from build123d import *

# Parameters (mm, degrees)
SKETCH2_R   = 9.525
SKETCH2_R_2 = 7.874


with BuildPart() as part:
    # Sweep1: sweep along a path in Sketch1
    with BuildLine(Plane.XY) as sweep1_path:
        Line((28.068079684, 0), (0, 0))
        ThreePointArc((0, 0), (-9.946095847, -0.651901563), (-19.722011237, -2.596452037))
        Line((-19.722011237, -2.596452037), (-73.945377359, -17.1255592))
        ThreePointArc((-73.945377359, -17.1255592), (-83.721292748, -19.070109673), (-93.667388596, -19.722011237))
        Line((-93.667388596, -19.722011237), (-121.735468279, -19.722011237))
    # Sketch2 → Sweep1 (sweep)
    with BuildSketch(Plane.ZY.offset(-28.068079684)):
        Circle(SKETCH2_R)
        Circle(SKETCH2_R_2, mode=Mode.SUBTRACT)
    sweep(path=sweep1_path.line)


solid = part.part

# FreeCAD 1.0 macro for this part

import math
import FreeCAD as App
import Part
import Sketcher

V = App.Vector
Q = App.Units.Quantity

doc = App.newDocument("Part")
body = doc.addObject("PartDesign::Body", "Body")

# Sketch on YZ plane
sketch1 = body.newObject("Sketcher::SketchObject", "Sketch")
sketch1.AttachmentSupport = (doc.getObject("YZ_Plane"), [""])
sketch1.MapMode = "FlatFace"
sketch1.AttachmentOffset = App.Placement(V(0, 0, 28.06808), App.Rotation())
sketch1.addGeometry([
    Part.Circle(V(0, 0, 0), V(0, 0, 1), 10),
    Part.Circle(V(0, 0, 0), V(0, 0, 1), 8),
], False)
sketch1.addConstraint([
    Sketcher.Constraint("Coincident", 0, 3, -1, 1),
    Sketcher.Constraint("Coincident", 1, 3, -1, 1),
    Sketcher.Constraint("Diameter", 0, Q("0.75 in")),
    Sketcher.Constraint("Diameter", 1, Q("0.62 in")),
])

# Sketch on XY plane
sketch2 = body.newObject("Sketcher::SketchObject", "Sketch001")
sketch2.AttachmentSupport = (doc.getObject("XY_Plane"), [""])
sketch2.MapMode = "FlatFace"
sketch2.addGeometry([
    Part.LineSegment(V(28, 0, 0), V(0, 0, 0)),  # 0
    Part.ArcOfCircle(Part.Circle(V(0, -76, 0), V(0, 0, 1), 76), math.radians(90), math.radians(105)),  # 1
    Part.LineSegment(V(-20, -3, 0), V(-74, -17, 0)),  # 2
    Part.ArcOfCircle(Part.Circle(V(-94, 56, 0), V(0, 0, 1), 76), math.radians(-90), math.radians(-75)),  # 3
    Part.LineSegment(V(-94, -20, 0), V(-122, -20, 0)),  # 4
], False)
sketch2.addConstraint([
    Sketcher.Constraint("Tangent", 0, 2, 1, 1),
    Sketcher.Constraint("Tangent", 1, 2, 2, 1),
    Sketcher.Constraint("Tangent", 2, 2, 3, 2),
    Sketcher.Constraint("Tangent", 3, 1, 4, 1),
    Sketcher.Constraint("Horizontal", 0),
    Sketcher.Constraint("Horizontal", 4),
    Sketcher.Constraint("Coincident", 0, 2, -1, 1),
    Sketcher.Constraint("Equal", 1, 3),
    Sketcher.Constraint("Equal", 0, 4),
    Sketcher.Constraint("Radius", 1, Q("3 in")),
    Sketcher.Constraint("Angle", 2, Q("-165 deg")),
    Sketcher.Constraint("DistanceX", 0, 2, 0, 1, Q("28.06808 mm")),
    Sketcher.Constraint("Distance", 2, Q("56.136159 mm")),
])
doc.recompute()

additivepipe = body.newObject("PartDesign::AdditivePipe", "AdditivePipe")
additivepipe.Profile = sketch1
additivepipe.Spine = (sketch2, ["Edge1", "Edge2", "Edge3", "Edge4", "Edge5"])

doc.recompute()
